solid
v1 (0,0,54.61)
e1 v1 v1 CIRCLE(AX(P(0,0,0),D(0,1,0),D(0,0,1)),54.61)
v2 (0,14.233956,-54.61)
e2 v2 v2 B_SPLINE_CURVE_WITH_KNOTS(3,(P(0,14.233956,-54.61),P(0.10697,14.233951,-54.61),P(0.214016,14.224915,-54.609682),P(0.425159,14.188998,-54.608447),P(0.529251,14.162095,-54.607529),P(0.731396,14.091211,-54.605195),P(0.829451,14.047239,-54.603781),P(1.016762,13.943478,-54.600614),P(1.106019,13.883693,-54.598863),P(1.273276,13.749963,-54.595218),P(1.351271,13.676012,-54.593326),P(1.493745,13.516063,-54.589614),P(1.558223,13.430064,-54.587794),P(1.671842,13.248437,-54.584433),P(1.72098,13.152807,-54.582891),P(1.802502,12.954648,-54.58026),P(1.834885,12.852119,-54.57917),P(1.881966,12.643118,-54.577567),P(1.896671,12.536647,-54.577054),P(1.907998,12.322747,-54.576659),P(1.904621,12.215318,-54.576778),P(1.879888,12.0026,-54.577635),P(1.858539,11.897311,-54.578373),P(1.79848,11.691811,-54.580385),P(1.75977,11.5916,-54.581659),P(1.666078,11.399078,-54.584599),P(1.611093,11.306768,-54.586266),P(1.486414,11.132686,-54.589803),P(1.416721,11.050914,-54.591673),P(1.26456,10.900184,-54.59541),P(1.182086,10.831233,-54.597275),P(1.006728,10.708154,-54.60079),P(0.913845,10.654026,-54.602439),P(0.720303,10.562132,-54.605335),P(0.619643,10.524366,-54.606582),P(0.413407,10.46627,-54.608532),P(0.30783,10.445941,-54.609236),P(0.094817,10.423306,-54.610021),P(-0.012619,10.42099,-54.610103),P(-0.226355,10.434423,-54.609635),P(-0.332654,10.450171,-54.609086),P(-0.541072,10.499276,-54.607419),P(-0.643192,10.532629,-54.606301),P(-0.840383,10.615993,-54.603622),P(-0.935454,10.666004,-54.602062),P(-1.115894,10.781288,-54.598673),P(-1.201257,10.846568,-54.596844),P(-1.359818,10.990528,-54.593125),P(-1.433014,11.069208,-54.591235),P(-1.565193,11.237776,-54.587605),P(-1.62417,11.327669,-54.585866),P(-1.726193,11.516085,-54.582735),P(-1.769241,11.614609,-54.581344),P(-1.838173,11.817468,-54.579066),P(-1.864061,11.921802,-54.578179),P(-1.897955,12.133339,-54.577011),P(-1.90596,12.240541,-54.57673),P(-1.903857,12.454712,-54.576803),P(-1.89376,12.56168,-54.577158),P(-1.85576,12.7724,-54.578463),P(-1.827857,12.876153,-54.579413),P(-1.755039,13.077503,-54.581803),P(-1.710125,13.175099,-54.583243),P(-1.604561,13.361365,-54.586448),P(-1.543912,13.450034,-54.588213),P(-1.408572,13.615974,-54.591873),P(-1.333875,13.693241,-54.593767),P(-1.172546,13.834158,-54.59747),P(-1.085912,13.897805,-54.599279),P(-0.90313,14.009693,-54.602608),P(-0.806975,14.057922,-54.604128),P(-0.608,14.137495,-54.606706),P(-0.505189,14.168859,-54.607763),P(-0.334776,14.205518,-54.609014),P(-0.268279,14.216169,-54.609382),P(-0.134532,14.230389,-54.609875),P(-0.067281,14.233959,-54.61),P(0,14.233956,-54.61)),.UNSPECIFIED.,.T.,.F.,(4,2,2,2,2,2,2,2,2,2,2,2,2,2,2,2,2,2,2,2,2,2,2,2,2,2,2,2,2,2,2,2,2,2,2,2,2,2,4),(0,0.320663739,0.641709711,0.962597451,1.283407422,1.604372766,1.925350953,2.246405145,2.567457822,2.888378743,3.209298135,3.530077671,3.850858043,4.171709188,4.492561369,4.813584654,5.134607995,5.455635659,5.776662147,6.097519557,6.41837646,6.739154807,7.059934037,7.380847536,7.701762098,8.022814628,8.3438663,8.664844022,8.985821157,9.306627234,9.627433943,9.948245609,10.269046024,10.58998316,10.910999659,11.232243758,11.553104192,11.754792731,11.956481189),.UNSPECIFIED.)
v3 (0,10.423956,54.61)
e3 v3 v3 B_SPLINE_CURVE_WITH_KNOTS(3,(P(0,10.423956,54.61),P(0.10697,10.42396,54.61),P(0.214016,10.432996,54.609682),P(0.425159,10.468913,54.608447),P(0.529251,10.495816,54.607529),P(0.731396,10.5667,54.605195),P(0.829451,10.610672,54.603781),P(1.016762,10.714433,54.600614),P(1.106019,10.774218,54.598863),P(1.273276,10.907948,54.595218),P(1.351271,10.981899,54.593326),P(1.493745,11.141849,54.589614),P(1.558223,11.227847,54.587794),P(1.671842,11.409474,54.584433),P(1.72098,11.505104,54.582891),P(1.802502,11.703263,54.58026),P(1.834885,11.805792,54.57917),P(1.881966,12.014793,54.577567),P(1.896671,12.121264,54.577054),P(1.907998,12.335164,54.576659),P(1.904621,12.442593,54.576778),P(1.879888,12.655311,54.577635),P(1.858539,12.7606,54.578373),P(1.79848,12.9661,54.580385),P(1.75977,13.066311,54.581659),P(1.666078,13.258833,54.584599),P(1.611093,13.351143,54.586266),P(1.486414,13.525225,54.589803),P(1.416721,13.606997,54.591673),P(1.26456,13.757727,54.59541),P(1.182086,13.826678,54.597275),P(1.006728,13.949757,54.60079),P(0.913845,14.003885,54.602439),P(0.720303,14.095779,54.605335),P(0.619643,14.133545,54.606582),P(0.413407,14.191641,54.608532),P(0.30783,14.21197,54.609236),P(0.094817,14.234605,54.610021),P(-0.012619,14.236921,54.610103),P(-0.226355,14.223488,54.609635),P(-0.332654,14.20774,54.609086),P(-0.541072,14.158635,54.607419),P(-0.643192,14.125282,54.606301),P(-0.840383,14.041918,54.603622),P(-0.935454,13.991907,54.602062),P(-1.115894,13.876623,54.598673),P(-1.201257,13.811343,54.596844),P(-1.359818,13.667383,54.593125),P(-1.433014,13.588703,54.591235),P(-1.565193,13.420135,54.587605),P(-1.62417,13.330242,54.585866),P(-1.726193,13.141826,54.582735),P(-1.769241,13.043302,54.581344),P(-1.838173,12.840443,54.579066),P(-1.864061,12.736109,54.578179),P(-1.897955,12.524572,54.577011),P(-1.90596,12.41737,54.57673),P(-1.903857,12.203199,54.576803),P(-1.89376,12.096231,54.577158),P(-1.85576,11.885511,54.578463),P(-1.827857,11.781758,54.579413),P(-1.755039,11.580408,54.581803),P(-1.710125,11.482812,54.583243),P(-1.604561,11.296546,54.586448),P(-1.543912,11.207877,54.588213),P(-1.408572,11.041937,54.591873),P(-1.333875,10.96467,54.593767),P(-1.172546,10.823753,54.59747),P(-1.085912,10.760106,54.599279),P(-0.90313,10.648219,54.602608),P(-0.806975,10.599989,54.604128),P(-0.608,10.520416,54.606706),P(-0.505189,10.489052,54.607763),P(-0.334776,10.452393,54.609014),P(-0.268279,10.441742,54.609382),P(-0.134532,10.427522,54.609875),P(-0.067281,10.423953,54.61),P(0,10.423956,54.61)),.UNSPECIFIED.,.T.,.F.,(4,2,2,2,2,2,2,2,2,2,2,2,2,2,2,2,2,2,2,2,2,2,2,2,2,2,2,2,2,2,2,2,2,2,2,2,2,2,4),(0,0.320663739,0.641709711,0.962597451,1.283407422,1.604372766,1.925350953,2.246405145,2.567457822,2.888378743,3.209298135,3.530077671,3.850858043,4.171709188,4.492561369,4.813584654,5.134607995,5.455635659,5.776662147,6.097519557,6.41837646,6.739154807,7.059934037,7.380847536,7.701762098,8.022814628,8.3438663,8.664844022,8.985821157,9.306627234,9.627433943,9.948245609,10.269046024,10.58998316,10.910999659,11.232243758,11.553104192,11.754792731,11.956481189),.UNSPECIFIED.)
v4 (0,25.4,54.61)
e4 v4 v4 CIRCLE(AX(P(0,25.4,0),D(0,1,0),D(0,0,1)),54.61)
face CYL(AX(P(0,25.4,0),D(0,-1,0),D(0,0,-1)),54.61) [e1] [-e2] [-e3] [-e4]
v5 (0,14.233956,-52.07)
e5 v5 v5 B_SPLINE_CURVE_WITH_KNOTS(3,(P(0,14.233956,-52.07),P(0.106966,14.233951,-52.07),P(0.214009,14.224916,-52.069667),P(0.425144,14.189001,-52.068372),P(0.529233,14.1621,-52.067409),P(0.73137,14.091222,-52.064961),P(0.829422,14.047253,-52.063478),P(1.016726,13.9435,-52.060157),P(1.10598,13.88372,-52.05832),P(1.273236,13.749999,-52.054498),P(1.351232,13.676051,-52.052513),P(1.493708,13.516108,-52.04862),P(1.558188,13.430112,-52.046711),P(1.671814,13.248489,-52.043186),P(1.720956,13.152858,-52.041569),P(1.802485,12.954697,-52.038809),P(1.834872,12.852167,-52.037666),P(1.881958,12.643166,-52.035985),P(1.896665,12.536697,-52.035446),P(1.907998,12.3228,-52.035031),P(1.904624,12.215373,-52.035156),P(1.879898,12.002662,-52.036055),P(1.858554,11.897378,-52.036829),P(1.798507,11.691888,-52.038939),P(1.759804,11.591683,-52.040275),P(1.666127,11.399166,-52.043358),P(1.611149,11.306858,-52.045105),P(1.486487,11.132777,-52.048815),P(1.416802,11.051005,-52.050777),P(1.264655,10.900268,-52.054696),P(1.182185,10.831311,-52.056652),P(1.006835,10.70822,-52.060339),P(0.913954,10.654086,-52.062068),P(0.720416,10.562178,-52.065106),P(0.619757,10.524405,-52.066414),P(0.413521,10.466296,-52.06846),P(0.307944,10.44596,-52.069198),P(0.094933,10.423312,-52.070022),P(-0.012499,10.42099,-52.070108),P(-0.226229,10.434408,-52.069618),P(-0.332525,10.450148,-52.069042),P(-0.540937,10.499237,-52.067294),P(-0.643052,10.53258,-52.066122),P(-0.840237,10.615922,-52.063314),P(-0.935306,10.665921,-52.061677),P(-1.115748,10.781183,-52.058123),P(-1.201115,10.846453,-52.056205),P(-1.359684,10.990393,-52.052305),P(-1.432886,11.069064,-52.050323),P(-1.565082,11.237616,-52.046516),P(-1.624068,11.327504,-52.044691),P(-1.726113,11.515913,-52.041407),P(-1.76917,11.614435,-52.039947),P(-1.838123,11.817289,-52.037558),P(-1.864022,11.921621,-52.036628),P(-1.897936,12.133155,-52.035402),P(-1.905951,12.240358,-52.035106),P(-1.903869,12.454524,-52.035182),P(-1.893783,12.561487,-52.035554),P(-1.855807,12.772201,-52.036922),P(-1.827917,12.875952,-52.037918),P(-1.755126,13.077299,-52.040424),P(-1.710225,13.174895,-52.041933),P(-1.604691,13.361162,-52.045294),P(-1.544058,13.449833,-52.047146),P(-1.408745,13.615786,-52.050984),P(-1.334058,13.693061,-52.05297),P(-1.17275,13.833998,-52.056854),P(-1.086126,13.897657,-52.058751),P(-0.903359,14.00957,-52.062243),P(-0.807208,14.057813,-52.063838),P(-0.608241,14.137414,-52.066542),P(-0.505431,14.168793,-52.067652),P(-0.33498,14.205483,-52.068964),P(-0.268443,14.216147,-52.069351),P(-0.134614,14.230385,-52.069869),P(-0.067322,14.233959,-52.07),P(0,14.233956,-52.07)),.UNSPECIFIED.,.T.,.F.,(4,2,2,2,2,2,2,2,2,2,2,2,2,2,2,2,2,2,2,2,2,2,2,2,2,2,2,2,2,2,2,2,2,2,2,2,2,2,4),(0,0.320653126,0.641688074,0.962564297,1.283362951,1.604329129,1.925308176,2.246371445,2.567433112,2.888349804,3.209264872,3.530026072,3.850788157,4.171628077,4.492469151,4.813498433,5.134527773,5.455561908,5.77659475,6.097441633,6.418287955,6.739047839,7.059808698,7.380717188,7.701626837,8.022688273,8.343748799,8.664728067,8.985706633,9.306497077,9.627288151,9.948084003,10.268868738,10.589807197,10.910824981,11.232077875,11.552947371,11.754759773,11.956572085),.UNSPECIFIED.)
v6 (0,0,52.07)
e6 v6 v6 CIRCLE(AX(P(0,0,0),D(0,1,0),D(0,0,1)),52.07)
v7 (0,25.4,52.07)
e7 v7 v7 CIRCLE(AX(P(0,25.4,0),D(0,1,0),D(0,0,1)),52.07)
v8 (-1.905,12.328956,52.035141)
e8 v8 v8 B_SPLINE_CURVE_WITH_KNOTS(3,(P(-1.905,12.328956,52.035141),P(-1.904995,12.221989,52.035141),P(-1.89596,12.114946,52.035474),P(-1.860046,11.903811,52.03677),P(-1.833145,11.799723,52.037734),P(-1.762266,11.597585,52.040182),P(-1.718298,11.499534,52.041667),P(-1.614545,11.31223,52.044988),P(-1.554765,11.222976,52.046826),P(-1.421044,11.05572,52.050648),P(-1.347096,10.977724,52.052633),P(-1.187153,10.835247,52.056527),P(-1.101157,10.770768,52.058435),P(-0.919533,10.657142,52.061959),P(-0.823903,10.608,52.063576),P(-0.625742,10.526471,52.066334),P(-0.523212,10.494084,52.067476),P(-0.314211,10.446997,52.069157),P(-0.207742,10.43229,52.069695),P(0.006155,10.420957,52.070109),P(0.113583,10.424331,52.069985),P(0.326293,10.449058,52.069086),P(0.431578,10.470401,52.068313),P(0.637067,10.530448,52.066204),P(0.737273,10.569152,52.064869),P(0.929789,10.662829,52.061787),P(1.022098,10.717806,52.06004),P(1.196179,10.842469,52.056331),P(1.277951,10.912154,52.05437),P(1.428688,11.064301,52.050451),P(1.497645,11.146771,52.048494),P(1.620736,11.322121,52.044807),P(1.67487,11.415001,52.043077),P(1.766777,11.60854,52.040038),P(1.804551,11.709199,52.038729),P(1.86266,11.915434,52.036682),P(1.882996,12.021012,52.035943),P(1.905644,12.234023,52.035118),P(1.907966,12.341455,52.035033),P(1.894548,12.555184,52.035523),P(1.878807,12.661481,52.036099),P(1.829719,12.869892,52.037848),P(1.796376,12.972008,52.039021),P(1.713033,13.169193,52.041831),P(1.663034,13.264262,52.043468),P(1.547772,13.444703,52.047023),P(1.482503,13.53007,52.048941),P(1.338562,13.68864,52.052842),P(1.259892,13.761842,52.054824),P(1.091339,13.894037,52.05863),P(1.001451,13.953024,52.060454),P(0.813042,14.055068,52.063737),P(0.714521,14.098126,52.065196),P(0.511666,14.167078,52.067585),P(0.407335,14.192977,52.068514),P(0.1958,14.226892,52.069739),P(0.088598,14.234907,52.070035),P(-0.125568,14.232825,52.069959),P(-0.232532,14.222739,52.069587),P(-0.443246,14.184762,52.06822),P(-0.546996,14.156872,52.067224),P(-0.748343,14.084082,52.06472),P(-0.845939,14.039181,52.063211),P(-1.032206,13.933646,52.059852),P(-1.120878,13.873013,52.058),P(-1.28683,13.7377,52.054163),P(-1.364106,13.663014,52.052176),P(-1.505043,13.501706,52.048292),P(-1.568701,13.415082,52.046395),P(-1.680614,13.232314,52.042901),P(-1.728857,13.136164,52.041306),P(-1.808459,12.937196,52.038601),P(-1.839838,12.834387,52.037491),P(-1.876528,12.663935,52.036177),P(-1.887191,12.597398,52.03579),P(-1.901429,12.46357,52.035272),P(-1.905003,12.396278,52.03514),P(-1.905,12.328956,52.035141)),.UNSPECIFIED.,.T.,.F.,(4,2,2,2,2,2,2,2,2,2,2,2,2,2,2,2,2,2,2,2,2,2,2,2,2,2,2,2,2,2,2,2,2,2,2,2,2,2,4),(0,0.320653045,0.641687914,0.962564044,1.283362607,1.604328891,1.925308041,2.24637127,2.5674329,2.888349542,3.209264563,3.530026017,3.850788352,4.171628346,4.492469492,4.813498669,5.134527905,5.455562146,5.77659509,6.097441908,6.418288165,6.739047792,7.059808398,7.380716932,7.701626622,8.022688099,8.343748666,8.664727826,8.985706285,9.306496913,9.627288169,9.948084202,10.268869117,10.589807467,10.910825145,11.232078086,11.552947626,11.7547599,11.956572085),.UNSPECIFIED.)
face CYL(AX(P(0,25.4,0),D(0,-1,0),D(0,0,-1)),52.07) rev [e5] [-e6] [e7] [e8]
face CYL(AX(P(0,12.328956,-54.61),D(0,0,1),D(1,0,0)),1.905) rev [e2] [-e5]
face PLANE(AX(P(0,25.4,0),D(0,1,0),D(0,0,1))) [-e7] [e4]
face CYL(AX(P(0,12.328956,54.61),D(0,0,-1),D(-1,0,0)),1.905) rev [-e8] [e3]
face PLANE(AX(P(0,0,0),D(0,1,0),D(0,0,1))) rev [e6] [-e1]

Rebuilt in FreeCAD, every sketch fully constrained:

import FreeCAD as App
import Part
import Sketcher
from FreeCAD import Vector
Q = App.Units.Quantity

doc = App.newDocument("Part")
body = doc.addObject("PartDesign::Body", "Body")

# Sketch on XZ plane
sketch1 = body.newObject("Sketcher::SketchObject", "Sketch")
sketch1.AttachmentSupport = (doc.getObject("XZ_Plane"), [""])
sketch1.MapMode = "FlatFace"
sketch1.addGeometry([
    Part.Circle(Vector(0, 0, 0), Vector(0, 0, 1), 55),
    Part.Circle(Vector(0, 0, 0), Vector(0, 0, 1), 52),
], False)
sketch1.addConstraint([
    Sketcher.Constraint("Coincident", 0, 3, -1, 1),
    Sketcher.Constraint("Coincident", 1, 3, -1, 1),
    Sketcher.Constraint("Diameter", 0, Q("4.3 in")),
    Sketcher.Constraint("Diameter", 1, Q("4.1 in")),
])
pad1 = body.newObject("PartDesign::Pad", "Pad")
pad1.Profile = sketch1
pad1.Length = Q("1 in")
pad1.Reversed = True

# Sketch on XY plane
sketch2 = body.newObject("Sketcher::SketchObject", "Sketch001")
sketch2.AttachmentSupport = (doc.getObject("XY_Plane"), [""])
sketch2.MapMode = "FlatFace"
sketch2.addGeometry(Part.Circle(Vector(0, 12.3, 0), Vector(0, 0, 1), 1.9), False)
sketch2.addConstraint([
    Sketcher.Constraint("PointOnObject", 0, 3, -2),
    Sketcher.Constraint("Diameter", 0, Q("0.15 in")),
    Sketcher.Constraint("DistanceY", -1, 1, 0, 3, Q("12.328956 mm")),
])
pocket1 = body.newObject("PartDesign::Pocket", "Pocket")
pocket1.Profile = sketch2
pocket1.Type = "ThroughAll"
pocket1.Reversed = True
doc.recompute()

polarpattern = body.newObject("PartDesign::PolarPattern", "PolarPattern")
polarpattern.Originals = [pocket1]
polarpattern.Axis = (doc.getObject("Y_Axis"), [""])
polarpattern.Angle = 360
polarpattern.Occurrences = 2
body.Tip = polarpattern

doc.recompute()
